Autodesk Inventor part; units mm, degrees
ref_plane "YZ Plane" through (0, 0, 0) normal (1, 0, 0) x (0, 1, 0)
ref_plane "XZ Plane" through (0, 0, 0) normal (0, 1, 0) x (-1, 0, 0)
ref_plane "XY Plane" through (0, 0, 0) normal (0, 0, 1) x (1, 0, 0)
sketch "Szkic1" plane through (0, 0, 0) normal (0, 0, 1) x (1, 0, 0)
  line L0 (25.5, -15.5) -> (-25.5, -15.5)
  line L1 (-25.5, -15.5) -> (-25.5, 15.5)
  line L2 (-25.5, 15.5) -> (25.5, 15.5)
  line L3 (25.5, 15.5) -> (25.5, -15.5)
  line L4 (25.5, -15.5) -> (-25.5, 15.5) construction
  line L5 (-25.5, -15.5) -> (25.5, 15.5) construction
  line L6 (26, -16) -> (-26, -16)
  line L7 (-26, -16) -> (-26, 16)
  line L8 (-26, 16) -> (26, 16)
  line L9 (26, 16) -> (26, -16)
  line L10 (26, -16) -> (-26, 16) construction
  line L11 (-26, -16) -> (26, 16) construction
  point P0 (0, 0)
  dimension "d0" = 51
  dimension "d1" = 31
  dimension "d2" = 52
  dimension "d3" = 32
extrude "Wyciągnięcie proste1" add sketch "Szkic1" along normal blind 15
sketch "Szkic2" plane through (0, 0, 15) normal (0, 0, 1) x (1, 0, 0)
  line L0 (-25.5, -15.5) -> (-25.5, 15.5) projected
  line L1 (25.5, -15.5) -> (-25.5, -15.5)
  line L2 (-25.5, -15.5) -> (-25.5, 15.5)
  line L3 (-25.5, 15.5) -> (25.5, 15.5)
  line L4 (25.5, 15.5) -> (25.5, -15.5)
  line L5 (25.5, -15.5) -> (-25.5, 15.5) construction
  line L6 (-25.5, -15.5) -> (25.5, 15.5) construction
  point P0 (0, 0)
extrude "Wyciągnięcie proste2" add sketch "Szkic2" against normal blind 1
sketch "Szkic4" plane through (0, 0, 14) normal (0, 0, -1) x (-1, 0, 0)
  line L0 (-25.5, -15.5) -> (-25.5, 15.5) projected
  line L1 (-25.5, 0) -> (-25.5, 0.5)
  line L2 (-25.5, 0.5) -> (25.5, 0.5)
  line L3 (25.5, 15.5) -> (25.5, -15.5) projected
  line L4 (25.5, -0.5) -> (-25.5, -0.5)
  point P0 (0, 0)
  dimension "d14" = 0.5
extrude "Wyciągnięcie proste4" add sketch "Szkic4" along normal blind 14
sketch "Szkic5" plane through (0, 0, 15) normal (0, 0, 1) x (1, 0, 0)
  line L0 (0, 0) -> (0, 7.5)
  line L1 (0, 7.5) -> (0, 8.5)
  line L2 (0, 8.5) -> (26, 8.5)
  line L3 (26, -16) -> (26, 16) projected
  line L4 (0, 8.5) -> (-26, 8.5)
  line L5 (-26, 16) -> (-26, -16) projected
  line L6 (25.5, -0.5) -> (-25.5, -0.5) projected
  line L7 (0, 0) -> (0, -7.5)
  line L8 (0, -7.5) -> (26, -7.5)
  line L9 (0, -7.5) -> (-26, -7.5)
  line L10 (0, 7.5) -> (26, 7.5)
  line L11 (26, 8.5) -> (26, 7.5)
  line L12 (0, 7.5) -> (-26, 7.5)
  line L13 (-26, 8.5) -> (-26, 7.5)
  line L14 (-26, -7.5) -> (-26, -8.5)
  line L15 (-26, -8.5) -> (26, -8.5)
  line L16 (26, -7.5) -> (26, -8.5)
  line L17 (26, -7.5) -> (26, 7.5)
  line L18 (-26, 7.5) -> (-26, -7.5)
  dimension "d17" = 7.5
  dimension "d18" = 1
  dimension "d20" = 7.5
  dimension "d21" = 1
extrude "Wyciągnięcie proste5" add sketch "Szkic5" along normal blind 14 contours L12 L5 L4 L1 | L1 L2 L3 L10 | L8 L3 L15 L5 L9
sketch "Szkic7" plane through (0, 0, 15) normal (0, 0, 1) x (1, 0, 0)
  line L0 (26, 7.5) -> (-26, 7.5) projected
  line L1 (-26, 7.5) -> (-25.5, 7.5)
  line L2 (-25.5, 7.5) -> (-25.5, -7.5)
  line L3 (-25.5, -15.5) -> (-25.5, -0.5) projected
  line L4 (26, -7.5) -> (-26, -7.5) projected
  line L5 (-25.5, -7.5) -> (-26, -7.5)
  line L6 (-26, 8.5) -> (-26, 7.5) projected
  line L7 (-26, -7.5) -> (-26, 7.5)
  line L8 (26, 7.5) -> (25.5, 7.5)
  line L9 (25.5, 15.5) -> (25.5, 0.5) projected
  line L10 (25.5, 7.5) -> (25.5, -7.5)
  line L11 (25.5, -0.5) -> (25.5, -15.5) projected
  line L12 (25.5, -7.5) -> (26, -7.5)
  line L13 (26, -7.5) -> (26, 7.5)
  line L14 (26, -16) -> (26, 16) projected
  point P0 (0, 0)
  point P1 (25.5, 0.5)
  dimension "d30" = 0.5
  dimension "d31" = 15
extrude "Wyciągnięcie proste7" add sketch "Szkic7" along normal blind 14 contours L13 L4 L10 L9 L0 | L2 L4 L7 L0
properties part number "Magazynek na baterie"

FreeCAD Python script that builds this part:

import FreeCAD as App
import Part
import Sketcher

V = App.Vector
Q = App.Units.Quantity

doc = App.newDocument("Part")
params = doc.addObject("Spreadsheet::Sheet", "Params")
for row, (alias, value) in enumerate([
    ("sketch1_width", "52 mm"),
    ("sketch1_width2", "51 mm"),
    ("sketch1_height", "32 mm"),
    ("sketch1_height2", "31 mm"),
    ("pad1_length", "15 mm"),
    ("sketch2_width", "51 mm"),
    ("sketch2_height", "31 mm"),
    ("pad2_length", "1 mm"),
    ("sketch3_width", "51 mm"),
    ("pad3_length", "14 mm"),
    ("sketch4_height", "1 mm"),
    ("sketch4_width", "52 mm"),
    ("pad4_length", "14 mm"),
    ("sketch5_height", "15 mm"),
    ("sketch5_width", "0.5 mm"),
    ("pad5_length", "14 mm"),
], start=1):
    params.set(f"A{row}", alias)
    params.set(f"B{row}", "=" + value)
    params.setAlias(f"B{row}", alias)

body = doc.addObject("PartDesign::Body", "Body")

sketch1 = doc.addObject("Sketcher::SketchObject", "Sketch")
body.addObject(sketch1)
sketch1.AttachmentSupport = (doc.XY_Plane, [""])
sketch1.MapMode = "FlatFace"
sketch1.addGeometry(Part.LineSegment(V(-26, -16, 0), V(26, -16, 0)), False)
sketch1.addGeometry(Part.LineSegment(V(26, -16, 0), V(26, 16, 0)), False)
sketch1.addGeometry(Part.LineSegment(V(26, 16, 0), V(-26, 16, 0)), False)
sketch1.addGeometry(Part.LineSegment(V(-26, 16, 0), V(-26, -16, 0)), False)
sketch1.addGeometry(Part.LineSegment(V(26, 16, 0), V(26, -16, 0)), False)
sketch1.addGeometry(Part.LineSegment(V(26, -16, 0), V(-26, -16, 0)), False)
sketch1.addGeometry(Part.LineSegment(V(-26, -16, 0), V(-26, 16, 0)), False)
sketch1.addGeometry(Part.LineSegment(V(-26, 16, 0), V(26, 16, 0)), False)
sketch1.addConstraint(Sketcher.Constraint("Coincident", 0, 2, 1, 1))
sketch1.addConstraint(Sketcher.Constraint("Coincident", 1, 2, 2, 1))
sketch1.addConstraint(Sketcher.Constraint("Coincident", 2, 2, 3, 1))
sketch1.addConstraint(Sketcher.Constraint("Coincident", 3, 2, 0, 1))
sketch1.addConstraint(Sketcher.Constraint("Coincident", 4, 2, 5, 1))
sketch1.addConstraint(Sketcher.Constraint("Coincident", 5, 2, 6, 1))
sketch1.addConstraint(Sketcher.Constraint("Coincident", 6, 2, 7, 1))
sketch1.addConstraint(Sketcher.Constraint("Coincident", 7, 2, 4, 1))
sketch1.addConstraint(Sketcher.Constraint("Horizontal", 0))
sketch1.addConstraint(Sketcher.Constraint("Vertical", 1))
sketch1.addConstraint(Sketcher.Constraint("Horizontal", 2))
sketch1.addConstraint(Sketcher.Constraint("Vertical", 3))
sketch1.addConstraint(Sketcher.Constraint("Vertical", 4))
sketch1.addConstraint(Sketcher.Constraint("Horizontal", 5))
sketch1.addConstraint(Sketcher.Constraint("Vertical", 6))
sketch1.addConstraint(Sketcher.Constraint("Horizontal", 7))
sketch1.addConstraint(Sketcher.Constraint("Symmetric", 0, 2, 2, 2, -1, 1))
sketch1.addConstraint(Sketcher.Constraint("Symmetric", 4, 2, 6, 2, -1, 1))
sketch1.addConstraint(Sketcher.Constraint("DistanceX", 0, 1, 0, 2, Q("52 mm")))
sketch1.addConstraint(Sketcher.Constraint("DistanceX", 5, 2, 5, 1, Q("51 mm")))
sketch1.addConstraint(Sketcher.Constraint("DistanceY", 1, 1, 1, 2, Q("32 mm")))
sketch1.addConstraint(Sketcher.Constraint("DistanceY", 4, 2, 4, 1, Q("31 mm")))
sketch1.setExpression("Constraints[18]", "Params.sketch1_width")
sketch1.setExpression("Constraints[19]", "Params.sketch1_width2")
sketch1.setExpression("Constraints[20]", "Params.sketch1_height")
sketch1.setExpression("Constraints[21]", "Params.sketch1_height2")
pad1 = doc.addObject("PartDesign::Pad", "Pad")
body.addObject(pad1)
pad1.Profile = sketch1
pad1.setExpression("Length", "Params.pad1_length")

sketch2 = doc.addObject("Sketcher::SketchObject", "Sketch001")
body.addObject(sketch2)
sketch2.AttachmentSupport = (doc.XY_Plane, [""])
sketch2.MapMode = "FlatFace"
sketch2.AttachmentOffset = App.Placement(V(0, 0, 15), App.Rotation())
sketch2.addGeometry(Part.LineSegment(V(-26, 16, 0), V(-26, -16, 0)), False)
sketch2.addGeometry(Part.LineSegment(V(-26, -16, 0), V(26, -16, 0)), False)
sketch2.addGeometry(Part.LineSegment(V(26, -16, 0), V(26, 16, 0)), False)
sketch2.addGeometry(Part.LineSegment(V(26, 16, 0), V(-26, 16, 0)), False)
sketch2.addConstraint(Sketcher.Constraint("Coincident", 0, 2, 1, 1))
sketch2.addConstraint(Sketcher.Constraint("Coincident", 1, 2, 2, 1))
sketch2.addConstraint(Sketcher.Constraint("Coincident", 2, 2, 3, 1))
sketch2.addConstraint(Sketcher.Constraint("Coincident", 3, 2, 0, 1))
sketch2.addConstraint(Sketcher.Constraint("Vertical", 0))
sketch2.addConstraint(Sketcher.Constraint("Horizontal", 1))
sketch2.addConstraint(Sketcher.Constraint("Vertical", 2))
sketch2.addConstraint(Sketcher.Constraint("Horizontal", 3))
sketch2.addConstraint(Sketcher.Constraint("Symmetric", 0, 2, 2, 2, -1, 1))
sketch2.addConstraint(Sketcher.Constraint("DistanceX", 1, 1, 1, 2, Q("51 mm")))
sketch2.addConstraint(Sketcher.Constraint("DistanceY", 0, 2, 0, 1, Q("31 mm")))
sketch2.setExpression("Constraints[9]", "Params.sketch2_width")
sketch2.setExpression("Constraints[10]", "Params.sketch2_height")
pad2 = doc.addObject("PartDesign::Pad", "Pad001")
body.addObject(pad2)
pad2.Profile = sketch2
pad2.setExpression("Length", "Params.pad2_length")
pad2.Reversed = True

sketch3 = doc.addObject("Sketcher::SketchObject", "Sketch002")
body.addObject(sketch3)
sketch3.AttachmentSupport = (doc.XY_Plane, [""])
sketch3.MapMode = "FlatFace"
sketch3.AttachmentOffset = App.Placement(V(0, 0, 14), App.Rotation())
sketch3.addGeometry(Part.LineSegment(V(25.5, 0.5, 0), V(25.5, -0.5, 0)), False)
sketch3.addGeometry(Part.LineSegment(V(25.5, -0.5, 0), V(-25.5, -0.5, 0)), False)
sketch3.addGeometry(Part.LineSegment(V(-25.5, -0.5, 0), V(-25.5, 0.5, 0)), False)
sketch3.addGeometry(Part.LineSegment(V(-25.5, 0.5, 0), V(25.5, 0.5, 0)), False)
sketch3.addConstraint(Sketcher.Constraint("Coincident", 0, 2, 1, 1))
sketch3.addConstraint(Sketcher.Constraint("Coincident", 1, 2, 2, 1))
sketch3.addConstraint(Sketcher.Constraint("Coincident", 2, 2, 3, 1))
sketch3.addConstraint(Sketcher.Constraint("Coincident", 3, 2, 0, 1))
sketch3.addConstraint(Sketcher.Constraint("Vertical", 0))
sketch3.addConstraint(Sketcher.Constraint("Horizontal", 1))
sketch3.addConstraint(Sketcher.Constraint("Vertical", 2))
sketch3.addConstraint(Sketcher.Constraint("Horizontal", 3))
sketch3.addConstraint(Sketcher.Constraint("Symmetric", 0, 2, 2, 2, -1, 1))
sketch3.addConstraint(Sketcher.Constraint("DistanceY", 0, 2, -1, 1, Q("0.5 mm")))
sketch3.addConstraint(Sketcher.Constraint("DistanceX", 1, 2, 1, 1, Q("51 mm")))
sketch3.setExpression("Constraints[10]", "Params.sketch3_width")
pad3 = doc.addObject("PartDesign::Pad", "Pad002")
body.addObject(pad3)
pad3.Profile = sketch3
pad3.setExpression("Length", "Params.pad3_length")
pad3.Reversed = True

sketch4 = doc.addObject("Sketcher::SketchObject", "Sketch003")
body.addObject(sketch4)
sketch4.AttachmentSupport = (doc.XY_Plane, [""])
sketch4.MapMode = "FlatFace"
sketch4.AttachmentOffset = App.Placement(V(0, 0, 15), App.Rotation())
sketch4.addGeometry(Part.LineSegment(V(-26, 7.5, 0), V(26, 7.5, 0)), False)
sketch4.addGeometry(Part.LineSegment(V(26, 7.5, 0), V(26, 8.5, 0)), False)
sketch4.addGeometry(Part.LineSegment(V(26, 8.5, 0), V(-26, 8.5, 0)), False)
sketch4.addGeometry(Part.LineSegment(V(-26, 8.5, 0), V(-26, 7.5, 0)), False)
sketch4.addGeometry(Part.LineSegment(V(26, -7.5, 0), V(-26, -7.5, 0)), False)
sketch4.addGeometry(Part.LineSegment(V(-26, -7.5, 0), V(-26, -8.5, 0)), False)
sketch4.addGeometry(Part.LineSegment(V(-26, -8.5, 0), V(26, -8.5, 0)), False)
sketch4.addGeometry(Part.LineSegment(V(26, -8.5, 0), V(26, -7.5, 0)), False)
sketch4.addConstraint(Sketcher.Constraint("Coincident", 0, 2, 1, 1))
sketch4.addConstraint(Sketcher.Constraint("Coincident", 1, 2, 2, 1))
sketch4.addConstraint(Sketcher.Constraint("Coincident", 2, 2, 3, 1))
sketch4.addConstraint(Sketcher.Constraint("Coincident", 3, 2, 0, 1))
sketch4.addConstraint(Sketcher.Constraint("Coincident", 4, 2, 5, 1))
sketch4.addConstraint(Sketcher.Constraint("Coincident", 5, 2, 6, 1))
sketch4.addConstraint(Sketcher.Constraint("Coincident", 6, 2, 7, 1))
sketch4.addConstraint(Sketcher.Constraint("Coincident", 7, 2, 4, 1))
sketch4.addConstraint(Sketcher.Constraint("Horizontal", 0))
sketch4.addConstraint(Sketcher.Constraint("Vertical", 1))
sketch4.addConstraint(Sketcher.Constraint("Horizontal", 2))
sketch4.addConstraint(Sketcher.Constraint("Vertical", 3))
sketch4.addConstraint(Sketcher.Constraint("Horizontal", 4))
sketch4.addConstraint(Sketcher.Constraint("Vertical", 5))
sketch4.addConstraint(Sketcher.Constraint("Horizontal", 6))
sketch4.addConstraint(Sketcher.Constraint("Vertical", 7))
sketch4.addConstraint(Sketcher.Constraint("Symmetric", 0, 2, 4, 2, -1, 1))
sketch4.addConstraint(Sketcher.Constraint("Symmetric", 2, 2, 6, 2, -1, 1))
sketch4.addConstraint(Sketcher.Constraint("Vertical", 3, 2, 4, 2))
sketch4.addConstraint(Sketcher.Constraint("DistanceY", 1, 1, 1, 2, Q("1 mm")))
sketch4.addConstraint(Sketcher.Constraint("DistanceY", -1, 1, 0, 2, Q("7.5 mm")))
sketch4.addConstraint(Sketcher.Constraint("DistanceX", 0, 1, 0, 2, Q("52 mm")))
sketch4.setExpression("Constraints[19]", "Params.sketch4_height")
sketch4.setExpression("Constraints[21]", "Params.sketch4_width")
pad4 = doc.addObject("PartDesign::Pad", "Pad003")
body.addObject(pad4)
pad4.Profile = sketch4
pad4.setExpression("Length", "Params.pad4_length")

sketch5 = doc.addObject("Sketcher::SketchObject", "Sketch004")
body.addObject(sketch5)
sketch5.AttachmentSupport = (doc.XY_Plane, [""])
sketch5.MapMode = "FlatFace"
sketch5.AttachmentOffset = App.Placement(V(0, 0, 15), App.Rotation())
sketch5.addGeometry(Part.LineSegment(V(26, -7.5, 0), V(26, 7.5, 0)), False)
sketch5.addGeometry(Part.LineSegment(V(26, 7.5, 0), V(25.5, 7.5, 0)), False)
sketch5.addGeometry(Part.LineSegment(V(25.5, 7.5, 0), V(25.5, -7.5, 0)), False)
sketch5.addGeometry(Part.LineSegment(V(25.5, -7.5, 0), V(26, -7.5, 0)), False)
sketch5.addGeometry(Part.LineSegment(V(-25.5, -7.5, 0), V(-25.5, 7.5, 0)), False)
sketch5.addGeometry(Part.LineSegment(V(-25.5, 7.5, 0), V(-26, 7.5, 0)), False)
sketch5.addGeometry(Part.LineSegment(V(-26, 7.5, 0), V(-26, -7.5, 0)), False)
sketch5.addGeometry(Part.LineSegment(V(-26, -7.5, 0), V(-25.5, -7.5, 0)), False)
sketch5.addConstraint(Sketcher.Constraint("Coincident", 0, 2, 1, 1))
sketch5.addConstraint(Sketcher.Constraint("Coincident", 1, 2, 2, 1))
sketch5.addConstraint(Sketcher.Constraint("Coincident", 2, 2, 3, 1))
sketch5.addConstraint(Sketcher.Constraint("Coincident", 3, 2, 0, 1))
sketch5.addConstraint(Sketcher.Constraint("Coincident", 4, 2, 5, 1))
sketch5.addConstraint(Sketcher.Constraint("Coincident", 5, 2, 6, 1))
sketch5.addConstraint(Sketcher.Constraint("Coincident", 6, 2, 7, 1))
sketch5.addConstraint(Sketcher.Constraint("Coincident", 7, 2, 4, 1))
sketch5.addConstraint(Sketcher.Constraint("Vertical", 0))
sketch5.addConstraint(Sketcher.Constraint("Horizontal", 1))
sketch5.addConstraint(Sketcher.Constraint("Vertical", 2))
sketch5.addConstraint(Sketcher.Constraint("Horizontal", 3))
sketch5.addConstraint(Sketcher.Constraint("Vertical", 4))
sketch5.addConstraint(Sketcher.Constraint("Horizontal", 5))
sketch5.addConstraint(Sketcher.Constraint("Vertical", 6))
sketch5.addConstraint(Sketcher.Constraint("Horizontal", 7))
sketch5.addConstraint(Sketcher.Constraint("Symmetric", 2, 2, 4, 2, -1, 1))
sketch5.addConstraint(Sketcher.Constraint("Symmetric", 0, 2, 6, 2, -1, 1))
sketch5.addConstraint(Sketcher.Constraint("Horizontal", 1, 2, 4, 2))
sketch5.addConstraint(Sketcher.Constraint("DistanceY", 0, 1, 0, 2, Q("15 mm")))
sketch5.addConstraint(Sketcher.Constraint("DistanceX", 1, 2, 1, 1, Q("0.5 mm")))
sketch5.addConstraint(Sketcher.Constraint("DistanceX", -1, 1, 0, 2, Q("26 mm")))
sketch5.setExpression("Constraints[19]", "Params.sketch5_height")
sketch5.setExpression("Constraints[20]", "Params.sketch5_width")
pad5 = doc.addObject("PartDesign::Pad", "Pad004")
body.addObject(pad5)
pad5.Profile = sketch5
pad5.setExpression("Length", "Params.pad5_length")

doc.recompute()
